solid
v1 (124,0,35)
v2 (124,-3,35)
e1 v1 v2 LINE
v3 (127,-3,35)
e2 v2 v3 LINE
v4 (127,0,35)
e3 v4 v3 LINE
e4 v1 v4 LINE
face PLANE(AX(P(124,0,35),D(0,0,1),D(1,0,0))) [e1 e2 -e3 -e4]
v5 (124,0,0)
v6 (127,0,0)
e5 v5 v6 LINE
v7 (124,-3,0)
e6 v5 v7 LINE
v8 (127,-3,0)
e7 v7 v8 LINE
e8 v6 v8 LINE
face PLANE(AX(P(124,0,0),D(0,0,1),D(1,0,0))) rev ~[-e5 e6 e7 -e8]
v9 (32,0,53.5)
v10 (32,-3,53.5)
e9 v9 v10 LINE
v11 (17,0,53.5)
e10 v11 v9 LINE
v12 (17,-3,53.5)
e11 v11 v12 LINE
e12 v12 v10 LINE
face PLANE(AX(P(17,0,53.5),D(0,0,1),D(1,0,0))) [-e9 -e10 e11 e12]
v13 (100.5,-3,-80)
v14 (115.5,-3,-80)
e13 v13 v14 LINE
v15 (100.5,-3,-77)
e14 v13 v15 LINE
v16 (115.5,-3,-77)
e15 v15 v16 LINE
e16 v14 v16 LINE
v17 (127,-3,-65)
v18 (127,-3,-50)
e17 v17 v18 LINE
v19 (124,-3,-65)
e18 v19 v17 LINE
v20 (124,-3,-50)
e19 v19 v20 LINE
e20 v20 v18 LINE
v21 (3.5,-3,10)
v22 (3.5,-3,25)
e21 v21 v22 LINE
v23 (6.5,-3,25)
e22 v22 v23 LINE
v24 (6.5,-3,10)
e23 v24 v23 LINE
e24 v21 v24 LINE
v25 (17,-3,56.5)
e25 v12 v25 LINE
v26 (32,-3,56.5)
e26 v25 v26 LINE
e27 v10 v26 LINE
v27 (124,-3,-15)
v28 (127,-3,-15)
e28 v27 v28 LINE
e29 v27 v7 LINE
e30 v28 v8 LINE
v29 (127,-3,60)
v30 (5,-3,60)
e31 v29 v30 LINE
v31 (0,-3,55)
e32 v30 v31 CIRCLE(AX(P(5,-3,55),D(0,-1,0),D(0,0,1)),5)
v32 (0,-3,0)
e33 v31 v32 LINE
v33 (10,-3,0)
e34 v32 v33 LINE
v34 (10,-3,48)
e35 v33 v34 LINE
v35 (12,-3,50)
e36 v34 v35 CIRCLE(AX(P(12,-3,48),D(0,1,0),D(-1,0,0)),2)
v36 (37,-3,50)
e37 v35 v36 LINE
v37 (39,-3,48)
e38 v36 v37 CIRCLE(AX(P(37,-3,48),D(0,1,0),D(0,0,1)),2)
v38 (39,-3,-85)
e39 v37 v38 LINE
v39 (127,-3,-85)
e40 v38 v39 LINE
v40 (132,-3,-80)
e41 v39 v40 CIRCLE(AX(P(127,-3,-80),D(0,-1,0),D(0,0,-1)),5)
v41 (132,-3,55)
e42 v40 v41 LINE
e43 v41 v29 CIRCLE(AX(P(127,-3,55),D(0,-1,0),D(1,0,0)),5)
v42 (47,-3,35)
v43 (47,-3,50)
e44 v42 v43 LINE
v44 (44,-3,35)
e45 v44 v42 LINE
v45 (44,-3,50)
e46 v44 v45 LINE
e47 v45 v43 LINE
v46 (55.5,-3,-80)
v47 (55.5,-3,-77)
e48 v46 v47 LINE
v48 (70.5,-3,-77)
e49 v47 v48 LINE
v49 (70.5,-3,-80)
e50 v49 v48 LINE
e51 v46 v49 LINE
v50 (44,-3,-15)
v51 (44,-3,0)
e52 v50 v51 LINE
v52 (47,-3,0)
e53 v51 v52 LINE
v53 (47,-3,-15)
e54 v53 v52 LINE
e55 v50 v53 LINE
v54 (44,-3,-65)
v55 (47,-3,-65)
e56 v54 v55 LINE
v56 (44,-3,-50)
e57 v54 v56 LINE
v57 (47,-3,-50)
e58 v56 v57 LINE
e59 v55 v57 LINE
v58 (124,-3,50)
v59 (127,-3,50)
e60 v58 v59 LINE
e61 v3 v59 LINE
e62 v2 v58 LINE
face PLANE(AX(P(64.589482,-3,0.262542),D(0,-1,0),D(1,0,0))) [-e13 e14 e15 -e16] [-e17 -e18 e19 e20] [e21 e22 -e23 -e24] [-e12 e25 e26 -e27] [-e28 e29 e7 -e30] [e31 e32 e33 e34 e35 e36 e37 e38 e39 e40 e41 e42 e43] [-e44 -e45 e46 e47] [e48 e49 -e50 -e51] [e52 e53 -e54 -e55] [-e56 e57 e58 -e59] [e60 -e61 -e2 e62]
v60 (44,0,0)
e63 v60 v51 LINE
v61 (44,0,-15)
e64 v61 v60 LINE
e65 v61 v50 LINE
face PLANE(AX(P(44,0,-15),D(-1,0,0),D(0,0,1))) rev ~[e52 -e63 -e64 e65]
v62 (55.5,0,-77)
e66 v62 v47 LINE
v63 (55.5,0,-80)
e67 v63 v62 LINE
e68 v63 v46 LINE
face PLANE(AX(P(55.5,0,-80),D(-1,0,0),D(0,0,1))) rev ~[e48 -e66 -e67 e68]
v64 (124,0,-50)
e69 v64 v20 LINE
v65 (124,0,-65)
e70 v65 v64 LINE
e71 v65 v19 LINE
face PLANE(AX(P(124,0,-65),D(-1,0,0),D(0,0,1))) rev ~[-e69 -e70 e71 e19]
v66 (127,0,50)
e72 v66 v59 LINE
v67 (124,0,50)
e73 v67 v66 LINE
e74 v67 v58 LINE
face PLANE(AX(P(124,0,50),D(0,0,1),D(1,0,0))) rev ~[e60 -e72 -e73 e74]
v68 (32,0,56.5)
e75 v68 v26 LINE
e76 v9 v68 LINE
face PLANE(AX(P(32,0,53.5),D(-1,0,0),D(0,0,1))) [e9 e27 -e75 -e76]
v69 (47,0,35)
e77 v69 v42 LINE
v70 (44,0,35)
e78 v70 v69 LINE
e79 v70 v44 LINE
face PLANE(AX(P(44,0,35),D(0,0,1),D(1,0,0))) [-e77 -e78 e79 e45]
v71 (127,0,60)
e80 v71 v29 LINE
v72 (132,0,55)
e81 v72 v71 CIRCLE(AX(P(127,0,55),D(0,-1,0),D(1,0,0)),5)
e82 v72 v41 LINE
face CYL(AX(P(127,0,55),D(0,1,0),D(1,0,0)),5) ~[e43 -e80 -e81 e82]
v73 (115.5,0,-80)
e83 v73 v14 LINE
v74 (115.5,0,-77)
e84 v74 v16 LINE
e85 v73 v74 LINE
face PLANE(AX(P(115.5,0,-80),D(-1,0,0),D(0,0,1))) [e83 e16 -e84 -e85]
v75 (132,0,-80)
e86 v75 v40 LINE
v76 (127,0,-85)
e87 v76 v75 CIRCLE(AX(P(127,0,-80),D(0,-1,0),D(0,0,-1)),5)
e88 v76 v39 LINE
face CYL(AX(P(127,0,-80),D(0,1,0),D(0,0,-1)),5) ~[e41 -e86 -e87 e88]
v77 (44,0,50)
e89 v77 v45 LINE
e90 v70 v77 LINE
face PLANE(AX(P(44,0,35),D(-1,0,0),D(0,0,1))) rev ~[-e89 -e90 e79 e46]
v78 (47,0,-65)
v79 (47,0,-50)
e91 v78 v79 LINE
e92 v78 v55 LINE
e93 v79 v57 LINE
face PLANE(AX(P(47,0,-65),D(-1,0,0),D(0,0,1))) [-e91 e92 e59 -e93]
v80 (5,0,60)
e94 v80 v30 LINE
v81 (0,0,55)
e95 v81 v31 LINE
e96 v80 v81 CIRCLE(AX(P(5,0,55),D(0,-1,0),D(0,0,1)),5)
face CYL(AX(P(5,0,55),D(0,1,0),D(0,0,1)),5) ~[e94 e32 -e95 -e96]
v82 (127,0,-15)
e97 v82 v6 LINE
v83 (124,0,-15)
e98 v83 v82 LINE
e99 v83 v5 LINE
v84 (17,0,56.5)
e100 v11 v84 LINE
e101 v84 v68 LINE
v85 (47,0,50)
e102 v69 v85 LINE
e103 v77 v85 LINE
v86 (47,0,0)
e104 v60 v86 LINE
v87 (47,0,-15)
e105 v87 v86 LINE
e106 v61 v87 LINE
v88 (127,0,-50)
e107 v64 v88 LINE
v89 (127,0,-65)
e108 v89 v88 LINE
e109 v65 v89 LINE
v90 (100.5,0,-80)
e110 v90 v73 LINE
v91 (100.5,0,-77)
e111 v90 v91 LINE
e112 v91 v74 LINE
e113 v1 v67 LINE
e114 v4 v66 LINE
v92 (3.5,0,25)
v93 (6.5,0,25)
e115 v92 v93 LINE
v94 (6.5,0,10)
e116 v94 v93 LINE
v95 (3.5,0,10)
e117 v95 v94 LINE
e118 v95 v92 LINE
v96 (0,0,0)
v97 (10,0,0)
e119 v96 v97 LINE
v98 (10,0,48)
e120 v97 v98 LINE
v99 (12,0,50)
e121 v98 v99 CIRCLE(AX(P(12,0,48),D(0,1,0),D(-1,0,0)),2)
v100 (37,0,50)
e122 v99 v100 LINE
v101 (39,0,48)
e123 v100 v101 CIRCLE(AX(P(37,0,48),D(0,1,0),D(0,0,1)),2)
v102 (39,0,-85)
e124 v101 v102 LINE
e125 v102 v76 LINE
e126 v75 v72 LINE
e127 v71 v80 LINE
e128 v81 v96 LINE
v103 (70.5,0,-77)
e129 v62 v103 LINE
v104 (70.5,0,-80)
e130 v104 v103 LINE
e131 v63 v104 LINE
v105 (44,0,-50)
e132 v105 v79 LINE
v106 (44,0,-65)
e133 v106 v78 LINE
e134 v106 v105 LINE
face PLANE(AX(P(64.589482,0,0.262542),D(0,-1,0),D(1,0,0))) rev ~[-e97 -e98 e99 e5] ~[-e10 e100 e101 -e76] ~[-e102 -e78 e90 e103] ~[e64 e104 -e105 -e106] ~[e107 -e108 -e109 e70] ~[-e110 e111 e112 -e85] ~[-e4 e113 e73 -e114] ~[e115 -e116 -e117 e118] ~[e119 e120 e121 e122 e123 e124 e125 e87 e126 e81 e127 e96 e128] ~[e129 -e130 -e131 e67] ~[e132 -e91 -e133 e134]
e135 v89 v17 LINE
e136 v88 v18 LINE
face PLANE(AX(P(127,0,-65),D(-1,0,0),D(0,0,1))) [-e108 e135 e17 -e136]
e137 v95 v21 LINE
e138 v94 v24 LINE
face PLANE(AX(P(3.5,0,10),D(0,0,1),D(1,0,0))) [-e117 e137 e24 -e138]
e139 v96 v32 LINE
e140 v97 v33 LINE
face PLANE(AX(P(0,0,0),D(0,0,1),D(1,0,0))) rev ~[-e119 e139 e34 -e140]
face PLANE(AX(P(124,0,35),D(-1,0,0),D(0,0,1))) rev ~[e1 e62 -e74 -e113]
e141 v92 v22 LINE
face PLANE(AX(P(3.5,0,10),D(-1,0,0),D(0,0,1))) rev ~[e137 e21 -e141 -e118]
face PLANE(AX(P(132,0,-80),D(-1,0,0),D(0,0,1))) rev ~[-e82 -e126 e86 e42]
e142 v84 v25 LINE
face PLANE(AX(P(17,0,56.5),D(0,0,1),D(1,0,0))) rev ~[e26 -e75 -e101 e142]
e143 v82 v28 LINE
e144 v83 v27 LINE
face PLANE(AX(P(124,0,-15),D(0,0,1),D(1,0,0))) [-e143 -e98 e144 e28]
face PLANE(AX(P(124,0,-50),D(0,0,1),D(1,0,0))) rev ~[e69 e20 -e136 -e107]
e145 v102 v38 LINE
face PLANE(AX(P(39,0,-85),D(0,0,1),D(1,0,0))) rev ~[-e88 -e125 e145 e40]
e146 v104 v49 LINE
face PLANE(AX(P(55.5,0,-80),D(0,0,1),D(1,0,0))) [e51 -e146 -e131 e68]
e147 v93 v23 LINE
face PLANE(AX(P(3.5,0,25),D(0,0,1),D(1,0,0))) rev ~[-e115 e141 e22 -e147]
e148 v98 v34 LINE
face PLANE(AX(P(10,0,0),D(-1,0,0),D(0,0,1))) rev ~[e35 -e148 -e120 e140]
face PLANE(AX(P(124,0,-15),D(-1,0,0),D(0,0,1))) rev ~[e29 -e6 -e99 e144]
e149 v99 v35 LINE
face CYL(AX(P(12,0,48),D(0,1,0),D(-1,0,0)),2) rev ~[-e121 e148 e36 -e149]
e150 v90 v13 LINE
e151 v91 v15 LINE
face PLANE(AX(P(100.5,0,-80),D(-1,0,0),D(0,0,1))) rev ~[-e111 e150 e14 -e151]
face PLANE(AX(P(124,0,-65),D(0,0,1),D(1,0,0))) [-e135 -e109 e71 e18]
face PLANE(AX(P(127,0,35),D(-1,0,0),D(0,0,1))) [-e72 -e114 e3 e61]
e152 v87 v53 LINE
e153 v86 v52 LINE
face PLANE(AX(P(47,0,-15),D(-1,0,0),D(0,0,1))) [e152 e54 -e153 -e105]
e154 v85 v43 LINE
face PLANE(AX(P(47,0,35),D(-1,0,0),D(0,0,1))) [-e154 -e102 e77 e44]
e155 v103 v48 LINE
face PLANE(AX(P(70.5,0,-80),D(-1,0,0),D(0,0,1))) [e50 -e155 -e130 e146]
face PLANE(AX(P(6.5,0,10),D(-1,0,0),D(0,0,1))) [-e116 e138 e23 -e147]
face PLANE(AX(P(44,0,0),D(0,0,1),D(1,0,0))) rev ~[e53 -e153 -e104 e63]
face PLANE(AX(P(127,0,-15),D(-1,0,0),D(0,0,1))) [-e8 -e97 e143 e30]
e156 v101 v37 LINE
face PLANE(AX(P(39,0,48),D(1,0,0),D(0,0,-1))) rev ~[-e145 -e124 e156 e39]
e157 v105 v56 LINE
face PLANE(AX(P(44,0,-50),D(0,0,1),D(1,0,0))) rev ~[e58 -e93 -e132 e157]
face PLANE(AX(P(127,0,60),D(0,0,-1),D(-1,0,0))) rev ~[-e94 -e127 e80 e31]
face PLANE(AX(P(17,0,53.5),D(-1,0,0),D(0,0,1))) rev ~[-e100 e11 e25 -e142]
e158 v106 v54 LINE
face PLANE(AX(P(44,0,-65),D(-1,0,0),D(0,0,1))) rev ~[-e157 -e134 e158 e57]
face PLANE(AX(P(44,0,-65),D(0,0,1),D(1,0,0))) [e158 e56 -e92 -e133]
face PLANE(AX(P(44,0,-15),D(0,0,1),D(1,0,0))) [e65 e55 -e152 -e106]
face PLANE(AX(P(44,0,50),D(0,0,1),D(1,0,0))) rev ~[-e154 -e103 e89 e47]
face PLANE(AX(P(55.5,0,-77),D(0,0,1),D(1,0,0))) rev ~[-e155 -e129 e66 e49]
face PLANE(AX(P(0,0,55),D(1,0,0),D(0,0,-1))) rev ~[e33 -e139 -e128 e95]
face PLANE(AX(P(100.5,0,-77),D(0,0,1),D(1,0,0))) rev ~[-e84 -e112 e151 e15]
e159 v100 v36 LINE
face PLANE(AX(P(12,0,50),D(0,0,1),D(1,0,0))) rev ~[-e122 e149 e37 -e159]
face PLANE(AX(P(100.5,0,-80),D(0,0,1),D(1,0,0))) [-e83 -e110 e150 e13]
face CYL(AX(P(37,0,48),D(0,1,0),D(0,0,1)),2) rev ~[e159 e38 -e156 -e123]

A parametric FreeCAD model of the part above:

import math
import FreeCAD as App
import Part
import Sketcher
from FreeCAD import Vector


def add_polygon(sketch, points):
    """Adds a closed chain of lines whose ends are joined by coincident constraints."""
    first, n = sketch.GeometryCount, len(points)
    for a, b in zip(points, points[1:] + points[:1]):
        sketch.addGeometry(Part.LineSegment(App.Vector(*a, 0), App.Vector(*b, 0)), False)
    for i in range(n):
        sketch.addConstraint(Sketcher.Constraint("Coincident", first + i, 2, first + (i + 1) % n, 1))

doc = App.newDocument("Part")
body = doc.addObject("PartDesign::Body", "Body")

# Sketch on XZ plane
sketch1 = doc.addObject("Sketcher::SketchObject", "Sketch")
body.addObject(sketch1)
sketch1.AttachmentSupport = (doc.XZ_Plane, [""])
sketch1.MapMode = "FlatFace"
sketch1.addGeometry(Part.LineSegment(Vector(0, 55, 0), Vector(0, 0, 0)), False)  # 0
sketch1.addGeometry(Part.LineSegment(Vector(0, 0, 0), Vector(10, 0, 0)), False)  # 1
sketch1.addGeometry(Part.LineSegment(Vector(10, 0, 0), Vector(10, 48, 0)), False)  # 2
sketch1.addGeometry(Part.ArcOfCircle(Part.Circle(Vector(12, 48, 0), Vector(0, 0, 1), 2), math.radians(90), math.radians(180)), False)  # 3
sketch1.addGeometry(Part.LineSegment(Vector(12, 50, 0), Vector(37, 50, 0)), False)  # 4
sketch1.addGeometry(Part.ArcOfCircle(Part.Circle(Vector(37, 48, 0), Vector(0, 0, 1), 2), math.radians(0), math.radians(90)), False)  # 5
sketch1.addGeometry(Part.LineSegment(Vector(39, 48, 0), Vector(39, -85, 0)), False)  # 6
sketch1.addGeometry(Part.LineSegment(Vector(39, -85, 0), Vector(127, -85, 0)), False)  # 7
sketch1.addGeometry(Part.ArcOfCircle(Part.Circle(Vector(127, -80, 0), Vector(0, 0, 1), 5), math.radians(-90), math.radians(0)), False)  # 8
sketch1.addGeometry(Part.LineSegment(Vector(132, -80, 0), Vector(132, 55, 0)), False)  # 9
sketch1.addGeometry(Part.ArcOfCircle(Part.Circle(Vector(127, 55, 0), Vector(0, 0, 1), 5), math.radians(0), math.radians(90)), False)  # 10
sketch1.addGeometry(Part.LineSegment(Vector(127, 60, 0), Vector(5, 60, 0)), False)  # 11
sketch1.addGeometry(Part.ArcOfCircle(Part.Circle(Vector(5, 55, 0), Vector(0, 0, 1), 5), math.radians(90), math.radians(180)), False)  # 12
add_polygon(sketch1, [(70.5, -80), (55.5, -80), (55.5, -77), (70.5, -77)])  # lines 13-16
add_polygon(sketch1, [(47, -65), (44, -65), (44, -50), (47, -50)])  # lines 17-20
add_polygon(sketch1, [(115.5, -80), (100.5, -80), (100.5, -77), (115.5, -77)])  # lines 21-24
add_polygon(sketch1, [(127, -65), (124, -65), (124, -50), (127, -50)])  # lines 25-28
add_polygon(sketch1, [(6.5, 10), (3.5, 10), (3.5, 25), (6.5, 25)])  # lines 29-32
add_polygon(sketch1, [(47, -15), (44, -15), (44, 0), (47, 0)])  # lines 33-36
add_polygon(sketch1, [(32, 53.5), (17, 53.5), (17, 56.5), (32, 56.5)])  # lines 37-40
add_polygon(sketch1, [(47, 35), (44, 35), (44, 50), (47, 50)])  # lines 41-44
add_polygon(sketch1, [(127, -15), (124, -15), (124, 0), (127, 0)])  # lines 45-48
add_polygon(sketch1, [(127, 35), (124, 35), (124, 50), (127, 50)])  # lines 49-52
sketch1.addConstraint([
    Sketcher.Constraint("Coincident", 0, 2, 1, 1),
    Sketcher.Constraint("Coincident", 1, 2, 2, 1),
    Sketcher.Constraint("Tangent", 2, 2, 3, 2),
    Sketcher.Constraint("Tangent", 3, 1, 4, 1),
    Sketcher.Constraint("Tangent", 4, 2, 5, 2),
    Sketcher.Constraint("Tangent", 5, 1, 6, 1),
    Sketcher.Constraint("Coincident", 6, 2, 7, 1),
    Sketcher.Constraint("Tangent", 7, 2, 8, 1),
    Sketcher.Constraint("Tangent", 8, 2, 9, 1),
    Sketcher.Constraint("Tangent", 9, 2, 10, 1),
    Sketcher.Constraint("Tangent", 10, 2, 11, 1),
    Sketcher.Constraint("Tangent", 11, 2, 12, 1),
    Sketcher.Constraint("Tangent", 12, 2, 0, 1),
    Sketcher.Constraint("Vertical", 0),
    Sketcher.Constraint("Horizontal", 1),
    Sketcher.Constraint("Vertical", 2),
    Sketcher.Constraint("Horizontal", 4),
    Sketcher.Constraint("Vertical", 6),
    Sketcher.Constraint("Horizontal", 7),
    Sketcher.Constraint("Vertical", 9),
    Sketcher.Constraint("Horizontal", 11),
    Sketcher.Constraint("Horizontal", 13),
    Sketcher.Constraint("Vertical", 14),
    Sketcher.Constraint("Horizontal", 15),
    Sketcher.Constraint("Vertical", 16),
    Sketcher.Constraint("Horizontal", 17),
    Sketcher.Constraint("Vertical", 18),
    Sketcher.Constraint("Horizontal", 19),
    Sketcher.Constraint("Vertical", 20),
    Sketcher.Constraint("Horizontal", 21),
    Sketcher.Constraint("Vertical", 22),
    Sketcher.Constraint("Horizontal", 23),
    Sketcher.Constraint("Vertical", 24),
    Sketcher.Constraint("Horizontal", 25),
    Sketcher.Constraint("Vertical", 26),
    Sketcher.Constraint("Horizontal", 27),
    Sketcher.Constraint("Vertical", 28),
    Sketcher.Constraint("Horizontal", 29),
    Sketcher.Constraint("Vertical", 30),
    Sketcher.Constraint("Horizontal", 31),
    Sketcher.Constraint("Vertical", 32),
    Sketcher.Constraint("Horizontal", 33),
    Sketcher.Constraint("Vertical", 34),
    Sketcher.Constraint("Horizontal", 35),
    Sketcher.Constraint("Vertical", 36),
    Sketcher.Constraint("Horizontal", 37),
    Sketcher.Constraint("Vertical", 38),
    Sketcher.Constraint("Horizontal", 39),
    Sketcher.Constraint("Vertical", 40),
    Sketcher.Constraint("Horizontal", 41),
    Sketcher.Constraint("Vertical", 42),
    Sketcher.Constraint("Horizontal", 43),
    Sketcher.Constraint("Vertical", 44),
    Sketcher.Constraint("Horizontal", 45),
    Sketcher.Constraint("Vertical", 46),
    Sketcher.Constraint("Horizontal", 47),
    Sketcher.Constraint("Vertical", 48),
    Sketcher.Constraint("Horizontal", 49),
    Sketcher.Constraint("Vertical", 50),
    Sketcher.Constraint("Horizontal", 51),
    Sketcher.Constraint("Vertical", 52),
    Sketcher.Constraint("Coincident", 0, 2, -1, 1),
    Sketcher.Constraint("Equal", 3, 5),
    Sketcher.Constraint("Equal", 8, 10),
    Sketcher.Constraint("Equal", 10, 12),
    Sketcher.Constraint("Symmetric", 18, 2, 42, 2, -1),
    Sketcher.Constraint("Symmetric", 26, 2, 50, 2, -1),
    Sketcher.Constraint("PointOnObject", 34, 2, -1),
    Sketcher.Constraint("PointOnObject", 46, 2, -1),
    Sketcher.Constraint("Horizontal", 8, 2, 13, 2),
    Sketcher.Constraint("Horizontal", 16, 2, 21, 2),
    Sketcher.Constraint("Horizontal", 15, 2, 22, 2),
    Sketcher.Constraint("Horizontal", 20, 2, 25, 2),
    Sketcher.Constraint("Horizontal", 19, 2, 26, 2),
    Sketcher.Constraint("Horizontal", 4, 2, 42, 2),
    Sketcher.Constraint("Horizontal", 36, 2, 45, 2),
    Sketcher.Constraint("Horizontal", 44, 2, 49, 2),
    Sketcher.Constraint("Vertical", 10, 2, 27, 2),
    Sketcher.Constraint("Vertical", 18, 2, 33, 2),
    Sketcher.Constraint("Vertical", 20, 2, 35, 2),
    Sketcher.Constraint("Vertical", 36, 2, 43, 2),
    Sketcher.Constraint("Vertical", 26, 2, 45, 2),
    Sketcher.Constraint("Vertical", 28, 2, 47, 2),
    Sketcher.Constraint("Vertical", 48, 2, 51, 2),
    Sketcher.Constraint("Equal", 15, 21),
    Sketcher.Constraint("Equal", 19, 25),
    Sketcher.Constraint("Equal", 27, 29),
    Sketcher.Constraint("Equal", 23, 37),
    Sketcher.Constraint("Equal", 51, 14),
    Sketcher.Constraint("Equal", 39, 18),
    Sketcher.Constraint("Equal", 28, 30),
    Sketcher.Constraint("Equal", 32, 34),
    Sketcher.Constraint("Equal", 24, 38),
    Sketcher.Constraint("Equal", 36, 42),
    Sketcher.Constraint("Radius", 3, 2.0),
    Sketcher.Constraint("Radius", 8, 5.0),
    Sketcher.Constraint("DistanceX", 1, 1, 1, 2, 10.0),
    Sketcher.Constraint("DistanceX", 4, 1, 4, 2, 25.0),
    Sketcher.Constraint("DistanceX", 7, 1, 7, 2, 88.0),
    Sketcher.Constraint("DistanceX", 13, 2, 13, 1, 15.0),
    Sketcher.Constraint("DistanceX", 17, 2, 17, 1, 3.0),
    Sketcher.Constraint("DistanceY", 0, 2, 0, 1, 55.0),
    Sketcher.Constraint("DistanceY", 2, 1, 2, 2, 48.0),
    Sketcher.Constraint("DistanceY", 6, 2, 6, 1, 133.0),
    Sketcher.Constraint("DistanceX", -1, 1, 17, 2, 44.0),
    Sketcher.Constraint("DistanceY", -1, 1, 29, 2, 10.0),
    Sketcher.Constraint("DistanceX", -1, 1, 37, 2, 17.0),
    Sketcher.Constraint("DistanceX", 16, 2, 21, 2, 30.0),
    Sketcher.Constraint("DistanceX", -1, 1, 13, 2, 55.5),
    Sketcher.Constraint("DistanceX", -1, 1, 29, 2, 3.5),
    Sketcher.Constraint("DistanceY", -1, 1, 37, 2, 53.5),
])
pad1 = doc.addObject("PartDesign::Pad", "Pad")
body.addObject(pad1)
pad1.Profile = sketch1
pad1.Length = 3

doc.recompute()
